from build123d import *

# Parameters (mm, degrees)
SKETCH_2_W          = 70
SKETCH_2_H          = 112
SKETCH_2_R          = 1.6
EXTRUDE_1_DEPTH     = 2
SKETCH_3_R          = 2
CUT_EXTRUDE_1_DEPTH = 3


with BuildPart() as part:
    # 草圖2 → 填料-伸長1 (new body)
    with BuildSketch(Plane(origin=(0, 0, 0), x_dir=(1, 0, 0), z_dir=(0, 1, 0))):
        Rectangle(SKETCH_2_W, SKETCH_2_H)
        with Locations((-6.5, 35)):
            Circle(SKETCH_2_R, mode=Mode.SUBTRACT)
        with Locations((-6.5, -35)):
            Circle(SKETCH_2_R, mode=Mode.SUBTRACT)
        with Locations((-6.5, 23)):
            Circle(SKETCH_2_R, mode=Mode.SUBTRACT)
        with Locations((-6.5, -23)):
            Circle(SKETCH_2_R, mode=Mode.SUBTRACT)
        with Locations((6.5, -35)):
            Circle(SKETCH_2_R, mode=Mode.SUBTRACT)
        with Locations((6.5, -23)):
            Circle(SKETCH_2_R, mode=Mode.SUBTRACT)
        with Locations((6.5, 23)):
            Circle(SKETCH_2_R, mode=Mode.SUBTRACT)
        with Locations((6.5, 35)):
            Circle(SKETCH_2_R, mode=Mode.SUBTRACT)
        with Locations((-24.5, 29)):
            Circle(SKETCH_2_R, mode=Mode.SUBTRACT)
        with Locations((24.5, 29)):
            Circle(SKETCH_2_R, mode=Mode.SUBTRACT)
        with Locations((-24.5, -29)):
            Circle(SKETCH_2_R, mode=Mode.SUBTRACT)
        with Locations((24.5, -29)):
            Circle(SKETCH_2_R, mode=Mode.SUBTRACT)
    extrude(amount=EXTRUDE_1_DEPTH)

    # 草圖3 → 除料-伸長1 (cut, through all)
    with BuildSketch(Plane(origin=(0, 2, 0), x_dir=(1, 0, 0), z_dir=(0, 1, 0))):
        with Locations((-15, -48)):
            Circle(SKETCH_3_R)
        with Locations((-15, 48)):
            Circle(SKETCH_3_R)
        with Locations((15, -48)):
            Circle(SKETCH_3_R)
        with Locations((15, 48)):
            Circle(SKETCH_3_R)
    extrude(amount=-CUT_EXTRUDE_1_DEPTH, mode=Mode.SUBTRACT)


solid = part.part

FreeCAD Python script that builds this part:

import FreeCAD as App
import Part
import Sketcher

V = App.Vector

doc = App.newDocument("Part")
body = doc.addObject("PartDesign::Body", "Body")

# Sketch on XZ plane
sketch1 = doc.addObject("Sketcher::SketchObject", "Sketch")
body.addObject(sketch1)
sketch1.AttachmentSupport = (doc.XZ_Plane, [""])
sketch1.MapMode = "FlatFace"
sketch1.addGeometry(Part.LineSegment(V(-35, -56, 0), V(-35, 56, 0)), False)
sketch1.addGeometry(Part.LineSegment(V(-35, 56, 0), V(35, 56, 0)), False)
sketch1.addGeometry(Part.LineSegment(V(35, 56, 0), V(35, -56, 0)), False)
sketch1.addGeometry(Part.LineSegment(V(35, -56, 0), V(-35, -56, 0)), False)
sketch1.addGeometry(Part.Circle(V(-24.5, 29, 0), V(0, 0, 1), 1.6), False)
sketch1.addGeometry(Part.Circle(V(-6.5, 35, 0), V(0, 0, 1), 1.6), False)
sketch1.addGeometry(Part.Circle(V(-6.5, 23, 0), V(0, 0, 1), 1.6), False)
sketch1.addGeometry(Part.Circle(V(6.5, 35, 0), V(0, 0, 1), 1.6), False)
sketch1.addGeometry(Part.Circle(V(6.5, 23, 0), V(0, 0, 1), 1.6), False)
sketch1.addGeometry(Part.Circle(V(24.5, 29, 0), V(0, 0, 1), 1.6), False)
sketch1.addGeometry(Part.Circle(V(-24.5, -29, 0), V(0, 0, 1), 1.6), False)
sketch1.addGeometry(Part.Circle(V(-6.5, -23, 0), V(0, 0, 1), 1.6), False)
sketch1.addGeometry(Part.Circle(V(-6.5, -35, 0), V(0, 0, 1), 1.6), False)
sketch1.addGeometry(Part.Circle(V(6.5, -23, 0), V(0, 0, 1), 1.6), False)
sketch1.addGeometry(Part.Circle(V(6.5, -35, 0), V(0, 0, 1), 1.6), False)
sketch1.addGeometry(Part.Circle(V(24.5, -29, 0), V(0, 0, 1), 1.6), False)
sketch1.addConstraint(Sketcher.Constraint("Coincident", 0, 2, 1, 1))
sketch1.addConstraint(Sketcher.Constraint("Coincident", 1, 2, 2, 1))
sketch1.addConstraint(Sketcher.Constraint("Coincident", 2, 2, 3, 1))
sketch1.addConstraint(Sketcher.Constraint("Coincident", 3, 2, 0, 1))
sketch1.addConstraint(Sketcher.Constraint("Vertical", 0))
sketch1.addConstraint(Sketcher.Constraint("Horizontal", 1))
sketch1.addConstraint(Sketcher.Constraint("Vertical", 2))
sketch1.addConstraint(Sketcher.Constraint("Horizontal", 3))
sketch1.addConstraint(Sketcher.Constraint("Equal", 4, 5))
sketch1.addConstraint(Sketcher.Constraint("Equal", 5, 6))
sketch1.addConstraint(Sketcher.Constraint("Equal", 6, 7))
sketch1.addConstraint(Sketcher.Constraint("Equal", 7, 8))
sketch1.addConstraint(Sketcher.Constraint("Equal", 8, 9))
sketch1.addConstraint(Sketcher.Constraint("Equal", 9, 10))
sketch1.addConstraint(Sketcher.Constraint("Equal", 10, 11))
sketch1.addConstraint(Sketcher.Constraint("Equal", 11, 12))
sketch1.addConstraint(Sketcher.Constraint("Equal", 12, 13))
sketch1.addConstraint(Sketcher.Constraint("Equal", 13, 14))
sketch1.addConstraint(Sketcher.Constraint("Equal", 14, 15))
sketch1.addConstraint(Sketcher.Constraint("Symmetric", 9, 3, 10, 3, -1, 1))
sketch1.addConstraint(Sketcher.Constraint("Symmetric", 8, 3, 11, 3, -1, 1))
sketch1.addConstraint(Sketcher.Constraint("Symmetric", 7, 3, 12, 3, -1, 1))
sketch1.addConstraint(Sketcher.Constraint("Symmetric", 6, 3, 13, 3, -1, 1))
sketch1.addConstraint(Sketcher.Constraint("Symmetric", 5, 3, 14, 3, -1, 1))
sketch1.addConstraint(Sketcher.Constraint("Symmetric", 4, 3, 15, 3, -1, 1))
sketch1.addConstraint(Sketcher.Constraint("Symmetric", 0, 2, 2, 2, -1, 1))
sketch1.addConstraint(Sketcher.Constraint("Symmetric", 5, 3, 7, 3, -2))
sketch1.addConstraint(Sketcher.Constraint("Symmetric", 6, 3, 8, 3, -2))
sketch1.addConstraint(Sketcher.Constraint("Symmetric", 4, 3, 9, 3, -2))
sketch1.addConstraint(Sketcher.Constraint("Vertical", 5, 3, 6, 3))
sketch1.addConstraint(Sketcher.Constraint("Diameter", 4, 3.2))
sketch1.addConstraint(Sketcher.Constraint("DistanceX", 1, 1, 1, 2, 70.0))
sketch1.addConstraint(Sketcher.Constraint("DistanceY", 0, 1, 0, 2, 112.0))
sketch1.addConstraint(Sketcher.Constraint("DistanceY", -1, 1, 4, 3, 29.0))
sketch1.addConstraint(Sketcher.Constraint("DistanceY", -1, 1, 5, 3, 35.0))
sketch1.addConstraint(Sketcher.Constraint("DistanceY", -1, 1, 6, 3, 23.0))
sketch1.addConstraint(Sketcher.Constraint("DistanceX", 4, 3, 5, 3, 18.0))
sketch1.addConstraint(Sketcher.Constraint("DistanceX", 5, 3, 7, 3, 13.0))
pad1 = doc.addObject("PartDesign::Pad", "Pad")
body.addObject(pad1)
pad1.Profile = sketch1
pad1.Length = 2
pad1.Reversed = True

# Sketch on XZ plane
sketch2 = doc.addObject("Sketcher::SketchObject", "Sketch001")
body.addObject(sketch2)
sketch2.AttachmentSupport = (doc.XZ_Plane, [""])
sketch2.MapMode = "FlatFace"
sketch2.AttachmentOffset = App.Placement(V(0, 0, -2), App.Rotation())
sketch2.addGeometry(Part.Circle(V(-15, 48, 0), V(0, 0, 1), 2), False)
sketch2.addGeometry(Part.Circle(V(-15, -48, 0), V(0, 0, 1), 2), False)
sketch2.addGeometry(Part.Circle(V(15, 48, 0), V(0, 0, 1), 2), False)
sketch2.addGeometry(Part.Circle(V(15, -48, 0), V(0, 0, 1), 2), False)
sketch2.addConstraint(Sketcher.Constraint("Equal", 0, 1))
sketch2.addConstraint(Sketcher.Constraint("Equal", 1, 2))
sketch2.addConstraint(Sketcher.Constraint("Equal", 2, 3))
sketch2.addConstraint(Sketcher.Constraint("Symmetric", 1, 3, 2, 3, -1, 1))
sketch2.addConstraint(Sketcher.Constraint("Symmetric", 0, 3, 3, 3, -1, 1))
sketch2.addConstraint(Sketcher.Constraint("Symmetric", 0, 3, 2, 3, -2))
sketch2.addConstraint(Sketcher.Constraint("Diameter", 0, 4.0))
sketch2.addConstraint(Sketcher.Constraint("DistanceX", 0, 3, -1, 1, 15.0))
sketch2.addConstraint(Sketcher.Constraint("DistanceY", -1, 1, 0, 3, 48.0))
pocket1 = doc.addObject("PartDesign::Pocket", "Pocket")
body.addObject(pocket1)
pocket1.Profile = sketch2
pocket1.Type = "ThroughAll"
pocket1.Reversed = True

doc.recompute()
